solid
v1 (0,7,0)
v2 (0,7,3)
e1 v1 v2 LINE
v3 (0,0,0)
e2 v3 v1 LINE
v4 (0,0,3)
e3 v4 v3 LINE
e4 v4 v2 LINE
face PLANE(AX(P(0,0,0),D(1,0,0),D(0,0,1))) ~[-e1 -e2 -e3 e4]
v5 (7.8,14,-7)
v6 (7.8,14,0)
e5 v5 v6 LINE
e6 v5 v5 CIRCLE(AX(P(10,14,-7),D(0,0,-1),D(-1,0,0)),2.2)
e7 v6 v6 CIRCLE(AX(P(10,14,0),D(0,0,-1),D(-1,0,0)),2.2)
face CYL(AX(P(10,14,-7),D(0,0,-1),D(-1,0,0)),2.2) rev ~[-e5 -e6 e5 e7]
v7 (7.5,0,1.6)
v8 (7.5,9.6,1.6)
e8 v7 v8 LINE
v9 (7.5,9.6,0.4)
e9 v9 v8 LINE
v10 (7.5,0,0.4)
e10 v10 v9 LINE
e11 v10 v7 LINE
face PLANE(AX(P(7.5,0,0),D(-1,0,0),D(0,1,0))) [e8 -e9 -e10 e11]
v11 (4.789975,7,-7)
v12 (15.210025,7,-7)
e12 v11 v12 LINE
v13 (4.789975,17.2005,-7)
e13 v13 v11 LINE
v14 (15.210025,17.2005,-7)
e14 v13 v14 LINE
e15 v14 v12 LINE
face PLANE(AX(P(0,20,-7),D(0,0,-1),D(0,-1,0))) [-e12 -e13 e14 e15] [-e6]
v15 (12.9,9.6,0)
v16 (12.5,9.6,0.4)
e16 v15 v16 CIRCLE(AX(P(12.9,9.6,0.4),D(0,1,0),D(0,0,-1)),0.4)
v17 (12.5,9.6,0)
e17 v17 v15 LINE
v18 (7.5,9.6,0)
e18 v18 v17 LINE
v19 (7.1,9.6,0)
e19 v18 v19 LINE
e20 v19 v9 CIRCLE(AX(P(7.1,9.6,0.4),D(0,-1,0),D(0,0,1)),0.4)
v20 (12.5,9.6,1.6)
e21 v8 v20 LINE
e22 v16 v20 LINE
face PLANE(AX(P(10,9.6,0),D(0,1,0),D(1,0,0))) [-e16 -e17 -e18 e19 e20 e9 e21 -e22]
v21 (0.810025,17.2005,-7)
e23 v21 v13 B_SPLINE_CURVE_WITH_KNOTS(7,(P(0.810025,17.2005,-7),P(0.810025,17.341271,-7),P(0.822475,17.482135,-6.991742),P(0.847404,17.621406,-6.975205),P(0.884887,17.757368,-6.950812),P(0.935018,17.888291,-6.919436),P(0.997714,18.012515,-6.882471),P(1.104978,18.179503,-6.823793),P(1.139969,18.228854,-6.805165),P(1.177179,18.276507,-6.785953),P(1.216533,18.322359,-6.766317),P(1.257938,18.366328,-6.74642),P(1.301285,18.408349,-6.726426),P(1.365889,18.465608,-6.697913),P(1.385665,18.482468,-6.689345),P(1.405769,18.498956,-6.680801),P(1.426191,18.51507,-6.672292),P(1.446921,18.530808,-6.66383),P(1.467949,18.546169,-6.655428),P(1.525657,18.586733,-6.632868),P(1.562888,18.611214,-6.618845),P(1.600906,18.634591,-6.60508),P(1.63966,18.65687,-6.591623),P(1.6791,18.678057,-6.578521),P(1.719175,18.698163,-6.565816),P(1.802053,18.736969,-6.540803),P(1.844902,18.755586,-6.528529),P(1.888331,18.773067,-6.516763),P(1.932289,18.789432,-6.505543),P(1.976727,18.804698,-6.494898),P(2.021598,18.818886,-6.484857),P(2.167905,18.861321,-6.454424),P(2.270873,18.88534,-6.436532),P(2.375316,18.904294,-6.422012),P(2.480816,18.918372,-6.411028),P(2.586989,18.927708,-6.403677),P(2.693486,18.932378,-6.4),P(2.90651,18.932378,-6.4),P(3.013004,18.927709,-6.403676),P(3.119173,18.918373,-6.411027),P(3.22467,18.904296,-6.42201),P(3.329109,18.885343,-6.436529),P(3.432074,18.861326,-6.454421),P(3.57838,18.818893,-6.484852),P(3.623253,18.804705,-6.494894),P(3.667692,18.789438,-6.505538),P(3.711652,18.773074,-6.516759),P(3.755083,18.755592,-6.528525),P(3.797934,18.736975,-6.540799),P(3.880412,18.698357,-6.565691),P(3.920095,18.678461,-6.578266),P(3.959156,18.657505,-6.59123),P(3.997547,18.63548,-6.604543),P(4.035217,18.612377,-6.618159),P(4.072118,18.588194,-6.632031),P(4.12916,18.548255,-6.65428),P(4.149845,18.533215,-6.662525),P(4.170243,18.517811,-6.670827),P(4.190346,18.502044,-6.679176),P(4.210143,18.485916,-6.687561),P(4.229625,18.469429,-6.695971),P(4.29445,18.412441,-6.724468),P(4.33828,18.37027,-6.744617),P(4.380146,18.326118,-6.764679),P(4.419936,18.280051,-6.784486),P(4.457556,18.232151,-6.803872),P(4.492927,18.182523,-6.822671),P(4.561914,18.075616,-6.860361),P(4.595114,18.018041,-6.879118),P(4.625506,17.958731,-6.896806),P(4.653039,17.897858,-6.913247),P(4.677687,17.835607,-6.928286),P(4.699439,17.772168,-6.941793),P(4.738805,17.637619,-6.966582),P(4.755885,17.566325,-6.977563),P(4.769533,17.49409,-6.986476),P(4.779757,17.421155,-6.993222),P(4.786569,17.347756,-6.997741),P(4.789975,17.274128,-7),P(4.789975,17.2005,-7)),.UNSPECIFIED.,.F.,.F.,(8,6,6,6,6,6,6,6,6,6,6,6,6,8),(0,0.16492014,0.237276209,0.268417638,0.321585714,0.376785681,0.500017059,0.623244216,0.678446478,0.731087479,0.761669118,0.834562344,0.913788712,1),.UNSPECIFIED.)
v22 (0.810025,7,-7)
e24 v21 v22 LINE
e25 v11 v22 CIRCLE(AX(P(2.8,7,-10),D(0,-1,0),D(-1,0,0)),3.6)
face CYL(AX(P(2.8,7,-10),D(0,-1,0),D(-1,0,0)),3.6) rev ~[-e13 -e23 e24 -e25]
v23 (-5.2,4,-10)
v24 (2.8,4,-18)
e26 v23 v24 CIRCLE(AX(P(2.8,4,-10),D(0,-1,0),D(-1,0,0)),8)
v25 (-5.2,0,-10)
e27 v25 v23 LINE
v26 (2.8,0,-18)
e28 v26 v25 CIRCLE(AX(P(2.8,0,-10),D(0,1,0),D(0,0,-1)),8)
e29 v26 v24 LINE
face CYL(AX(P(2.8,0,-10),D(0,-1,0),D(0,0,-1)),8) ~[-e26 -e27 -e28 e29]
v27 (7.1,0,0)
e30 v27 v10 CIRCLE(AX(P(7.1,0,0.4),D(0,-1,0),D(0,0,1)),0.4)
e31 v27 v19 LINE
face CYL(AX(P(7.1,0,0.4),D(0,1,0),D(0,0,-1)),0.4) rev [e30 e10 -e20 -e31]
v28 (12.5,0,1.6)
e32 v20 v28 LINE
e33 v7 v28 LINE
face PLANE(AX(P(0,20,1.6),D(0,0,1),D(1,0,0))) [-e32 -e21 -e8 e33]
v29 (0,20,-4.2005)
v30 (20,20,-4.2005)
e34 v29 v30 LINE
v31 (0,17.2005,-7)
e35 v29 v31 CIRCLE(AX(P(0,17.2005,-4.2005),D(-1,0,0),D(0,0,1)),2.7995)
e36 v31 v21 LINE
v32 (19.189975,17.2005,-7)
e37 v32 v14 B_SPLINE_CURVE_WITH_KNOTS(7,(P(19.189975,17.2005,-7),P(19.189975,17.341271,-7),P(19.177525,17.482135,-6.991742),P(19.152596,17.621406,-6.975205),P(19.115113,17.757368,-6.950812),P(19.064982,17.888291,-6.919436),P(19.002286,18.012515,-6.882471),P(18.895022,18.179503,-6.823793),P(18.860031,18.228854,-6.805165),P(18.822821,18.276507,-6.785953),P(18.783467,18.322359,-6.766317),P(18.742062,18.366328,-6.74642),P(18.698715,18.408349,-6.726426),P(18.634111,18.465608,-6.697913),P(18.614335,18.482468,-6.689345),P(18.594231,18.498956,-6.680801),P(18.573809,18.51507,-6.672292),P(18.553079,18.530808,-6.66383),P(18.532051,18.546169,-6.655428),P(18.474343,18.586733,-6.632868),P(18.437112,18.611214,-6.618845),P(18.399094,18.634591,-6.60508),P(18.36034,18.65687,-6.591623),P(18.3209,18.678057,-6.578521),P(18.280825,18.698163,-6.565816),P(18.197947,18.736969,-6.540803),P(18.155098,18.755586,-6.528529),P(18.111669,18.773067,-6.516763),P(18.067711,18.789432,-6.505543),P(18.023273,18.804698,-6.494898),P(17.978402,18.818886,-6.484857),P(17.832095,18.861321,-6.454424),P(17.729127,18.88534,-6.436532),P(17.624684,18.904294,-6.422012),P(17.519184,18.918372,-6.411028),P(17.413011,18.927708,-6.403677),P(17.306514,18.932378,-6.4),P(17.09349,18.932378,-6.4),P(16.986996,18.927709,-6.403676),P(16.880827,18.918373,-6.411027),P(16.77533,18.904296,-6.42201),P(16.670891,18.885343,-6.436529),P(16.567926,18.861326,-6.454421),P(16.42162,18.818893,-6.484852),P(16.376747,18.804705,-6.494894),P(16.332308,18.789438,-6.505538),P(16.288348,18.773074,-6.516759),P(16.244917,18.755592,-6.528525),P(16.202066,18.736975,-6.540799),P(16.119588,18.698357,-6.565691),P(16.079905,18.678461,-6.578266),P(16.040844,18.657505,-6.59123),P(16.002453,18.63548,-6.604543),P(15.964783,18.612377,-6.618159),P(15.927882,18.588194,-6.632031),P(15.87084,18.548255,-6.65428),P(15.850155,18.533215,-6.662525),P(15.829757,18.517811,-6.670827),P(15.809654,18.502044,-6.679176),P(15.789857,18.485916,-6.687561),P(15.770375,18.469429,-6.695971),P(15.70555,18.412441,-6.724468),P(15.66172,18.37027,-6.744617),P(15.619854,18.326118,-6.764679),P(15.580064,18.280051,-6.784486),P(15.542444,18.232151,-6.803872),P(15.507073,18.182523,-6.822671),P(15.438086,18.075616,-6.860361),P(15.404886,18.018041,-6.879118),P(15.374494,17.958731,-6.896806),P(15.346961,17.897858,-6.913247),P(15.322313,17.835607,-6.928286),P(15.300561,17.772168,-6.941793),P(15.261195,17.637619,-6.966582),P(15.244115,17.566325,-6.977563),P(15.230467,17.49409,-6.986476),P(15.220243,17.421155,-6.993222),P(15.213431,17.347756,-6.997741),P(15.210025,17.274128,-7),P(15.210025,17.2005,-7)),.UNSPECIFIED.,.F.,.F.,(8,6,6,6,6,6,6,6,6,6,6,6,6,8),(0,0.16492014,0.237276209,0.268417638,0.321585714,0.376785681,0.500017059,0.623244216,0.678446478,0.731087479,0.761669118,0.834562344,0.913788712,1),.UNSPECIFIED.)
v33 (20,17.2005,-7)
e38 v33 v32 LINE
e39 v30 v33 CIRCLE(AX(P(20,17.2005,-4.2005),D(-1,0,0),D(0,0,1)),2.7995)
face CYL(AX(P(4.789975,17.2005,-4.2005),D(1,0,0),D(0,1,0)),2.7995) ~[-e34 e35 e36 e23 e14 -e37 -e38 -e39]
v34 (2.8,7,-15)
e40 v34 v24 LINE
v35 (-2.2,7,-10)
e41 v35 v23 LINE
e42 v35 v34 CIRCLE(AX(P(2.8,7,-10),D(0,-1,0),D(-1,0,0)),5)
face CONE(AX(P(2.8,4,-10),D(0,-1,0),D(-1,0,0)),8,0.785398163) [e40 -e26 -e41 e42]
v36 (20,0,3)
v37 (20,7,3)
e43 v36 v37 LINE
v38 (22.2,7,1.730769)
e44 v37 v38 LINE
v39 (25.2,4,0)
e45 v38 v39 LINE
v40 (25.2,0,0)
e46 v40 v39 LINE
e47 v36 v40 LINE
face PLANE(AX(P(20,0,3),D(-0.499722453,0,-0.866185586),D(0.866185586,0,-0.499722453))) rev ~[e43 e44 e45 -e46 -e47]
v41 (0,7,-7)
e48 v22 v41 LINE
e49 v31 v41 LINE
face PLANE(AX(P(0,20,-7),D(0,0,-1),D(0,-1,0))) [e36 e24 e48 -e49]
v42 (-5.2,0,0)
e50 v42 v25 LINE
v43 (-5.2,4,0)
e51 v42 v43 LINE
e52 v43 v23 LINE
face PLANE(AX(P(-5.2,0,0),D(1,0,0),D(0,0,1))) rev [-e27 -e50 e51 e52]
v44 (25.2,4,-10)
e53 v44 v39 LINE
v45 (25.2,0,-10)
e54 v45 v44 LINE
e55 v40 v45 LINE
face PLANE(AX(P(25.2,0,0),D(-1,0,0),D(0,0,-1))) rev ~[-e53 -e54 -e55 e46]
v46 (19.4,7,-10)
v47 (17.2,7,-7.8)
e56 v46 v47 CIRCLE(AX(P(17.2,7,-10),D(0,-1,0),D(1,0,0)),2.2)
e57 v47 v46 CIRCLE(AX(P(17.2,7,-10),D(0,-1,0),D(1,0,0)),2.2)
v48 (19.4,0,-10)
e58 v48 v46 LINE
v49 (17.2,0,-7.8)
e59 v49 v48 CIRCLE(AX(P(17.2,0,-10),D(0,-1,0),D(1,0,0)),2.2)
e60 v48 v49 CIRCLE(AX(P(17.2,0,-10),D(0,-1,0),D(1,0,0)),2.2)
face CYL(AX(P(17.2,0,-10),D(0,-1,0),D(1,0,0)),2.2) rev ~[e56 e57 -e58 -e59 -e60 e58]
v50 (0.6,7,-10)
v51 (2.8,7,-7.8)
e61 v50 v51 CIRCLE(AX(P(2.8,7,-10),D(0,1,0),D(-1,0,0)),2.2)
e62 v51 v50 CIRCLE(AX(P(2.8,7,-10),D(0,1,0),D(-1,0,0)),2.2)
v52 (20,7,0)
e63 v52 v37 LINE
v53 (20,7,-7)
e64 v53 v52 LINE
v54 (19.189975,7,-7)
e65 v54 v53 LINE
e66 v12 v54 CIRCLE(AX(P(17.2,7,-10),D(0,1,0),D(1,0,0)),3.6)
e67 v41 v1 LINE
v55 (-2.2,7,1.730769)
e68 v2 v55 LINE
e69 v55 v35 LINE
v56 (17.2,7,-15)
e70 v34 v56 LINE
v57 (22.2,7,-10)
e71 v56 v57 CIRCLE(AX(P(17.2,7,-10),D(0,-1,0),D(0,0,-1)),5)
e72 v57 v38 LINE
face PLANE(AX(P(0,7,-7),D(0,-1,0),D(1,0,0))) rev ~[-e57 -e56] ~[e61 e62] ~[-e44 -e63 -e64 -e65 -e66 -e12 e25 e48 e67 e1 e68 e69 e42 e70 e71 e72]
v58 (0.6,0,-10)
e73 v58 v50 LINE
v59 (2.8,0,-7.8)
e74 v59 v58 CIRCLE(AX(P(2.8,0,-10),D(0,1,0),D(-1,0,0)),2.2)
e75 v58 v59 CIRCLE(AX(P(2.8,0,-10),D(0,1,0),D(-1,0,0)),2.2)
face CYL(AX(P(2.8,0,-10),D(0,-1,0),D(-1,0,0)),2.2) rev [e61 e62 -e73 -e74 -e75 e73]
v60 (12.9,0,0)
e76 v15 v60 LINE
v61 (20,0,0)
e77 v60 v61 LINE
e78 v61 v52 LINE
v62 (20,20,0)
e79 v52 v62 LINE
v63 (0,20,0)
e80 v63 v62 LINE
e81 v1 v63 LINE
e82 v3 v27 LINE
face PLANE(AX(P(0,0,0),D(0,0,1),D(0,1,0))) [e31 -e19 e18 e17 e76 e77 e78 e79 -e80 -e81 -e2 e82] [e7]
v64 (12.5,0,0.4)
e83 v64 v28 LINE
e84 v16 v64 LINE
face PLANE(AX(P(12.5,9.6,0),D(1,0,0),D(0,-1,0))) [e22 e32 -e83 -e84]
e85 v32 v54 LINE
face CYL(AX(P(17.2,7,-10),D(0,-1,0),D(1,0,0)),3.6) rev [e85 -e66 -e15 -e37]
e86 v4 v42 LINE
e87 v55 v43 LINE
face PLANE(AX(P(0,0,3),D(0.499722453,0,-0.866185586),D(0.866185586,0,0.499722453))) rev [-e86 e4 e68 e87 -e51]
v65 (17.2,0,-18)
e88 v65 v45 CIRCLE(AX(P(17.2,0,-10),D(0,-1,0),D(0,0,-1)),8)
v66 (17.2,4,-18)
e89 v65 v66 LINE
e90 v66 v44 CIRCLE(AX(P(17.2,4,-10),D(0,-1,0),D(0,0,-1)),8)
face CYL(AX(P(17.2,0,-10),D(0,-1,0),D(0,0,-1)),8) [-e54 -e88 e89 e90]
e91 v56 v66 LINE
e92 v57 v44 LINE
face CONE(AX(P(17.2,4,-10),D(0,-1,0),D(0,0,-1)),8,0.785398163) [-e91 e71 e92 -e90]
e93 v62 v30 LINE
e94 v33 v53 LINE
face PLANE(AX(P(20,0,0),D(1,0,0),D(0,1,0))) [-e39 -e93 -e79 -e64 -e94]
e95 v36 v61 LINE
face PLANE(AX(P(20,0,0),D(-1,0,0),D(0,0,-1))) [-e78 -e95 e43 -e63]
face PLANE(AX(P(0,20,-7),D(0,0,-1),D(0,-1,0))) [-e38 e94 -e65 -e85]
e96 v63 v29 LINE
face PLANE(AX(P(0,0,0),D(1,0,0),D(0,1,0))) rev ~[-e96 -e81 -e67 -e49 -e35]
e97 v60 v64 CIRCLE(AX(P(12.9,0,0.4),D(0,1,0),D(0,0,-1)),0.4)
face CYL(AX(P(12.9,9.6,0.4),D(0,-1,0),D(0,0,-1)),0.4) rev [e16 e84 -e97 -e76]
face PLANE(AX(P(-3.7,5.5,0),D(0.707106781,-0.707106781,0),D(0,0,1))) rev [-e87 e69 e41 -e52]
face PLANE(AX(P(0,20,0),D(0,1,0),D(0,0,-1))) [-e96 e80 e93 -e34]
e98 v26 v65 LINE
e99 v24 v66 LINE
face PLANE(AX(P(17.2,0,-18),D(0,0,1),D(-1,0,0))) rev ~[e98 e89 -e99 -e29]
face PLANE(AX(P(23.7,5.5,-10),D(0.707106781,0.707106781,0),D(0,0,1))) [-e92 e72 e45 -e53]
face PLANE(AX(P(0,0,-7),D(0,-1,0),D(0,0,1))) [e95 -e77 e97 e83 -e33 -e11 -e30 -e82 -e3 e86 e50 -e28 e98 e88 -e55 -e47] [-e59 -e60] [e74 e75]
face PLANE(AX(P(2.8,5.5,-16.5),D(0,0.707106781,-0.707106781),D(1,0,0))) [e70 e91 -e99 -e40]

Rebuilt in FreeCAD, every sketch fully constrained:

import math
import FreeCAD as App
import Part
import Sketcher
from FreeCAD import Vector
Q = App.Units.Quantity


def edges_at(feature, points):
    """Names of the edges that pass closest to the given points."""
    edges = feature.Shape.Edges
    near = lambda p: min(range(len(edges)), key=lambda i: edges[i].distToShape(Part.Vertex(*p))[0])
    return sorted({f"Edge{near(p) + 1}" for p in points})

doc = App.newDocument("Part")
body = doc.addObject("PartDesign::Body", "Body")

sketch1 = body.newObject("Sketcher::SketchObject", "Sketch")
sketch1.AttachmentSupport = (doc.getObject("YZ_Plane"), [""])
sketch1.MapMode = "FlatFace"
sketch1.addGeometry([
    Part.LineSegment(Vector(20, 0, 0), Vector(0, 0, 0)),
    Part.LineSegment(Vector(0, 0, 0), Vector(0, -7, 0)),
    Part.LineSegment(Vector(0, -7, 0), Vector(20, -7, 0)),
    Part.LineSegment(Vector(20, -7, 0), Vector(20, 0, 0)),
], False)
sketch1.addConstraint([
    Sketcher.Constraint("Coincident", 0, 2, 1, 1),
    Sketcher.Constraint("Coincident", 1, 2, 2, 1),
    Sketcher.Constraint("Coincident", 2, 2, 3, 1),
    Sketcher.Constraint("Coincident", 3, 2, 0, 1),
    Sketcher.Constraint("Horizontal", 0),
    Sketcher.Constraint("Vertical", 1),
    Sketcher.Constraint("Horizontal", 2),
    Sketcher.Constraint("Vertical", 3),
    Sketcher.Constraint("Coincident", 0, 2, -1, 1),
    Sketcher.Constraint("DistanceX", 0, 2, 0, 1, Q("20 mm")),
    Sketcher.Constraint("DistanceY", 1, 2, 1, 1, Q("7 mm")),
])
pad1 = body.newObject("PartDesign::Pad", "Pad")
pad1.Profile = sketch1
pad1.Length = 20

sketch2 = body.newObject("Sketcher::SketchObject", "Sketch001")
sketch2.AttachmentSupport = (doc.getObject("XY_Plane"), [""])
sketch2.MapMode = "FlatFace"
sketch2.AttachmentOffset = App.Placement(Vector(0, 0, -7), App.Rotation())
sketch2.addGeometry(Part.Circle(Vector(10, 14, 0), Vector(0, 0, 1), 2.2), False)
sketch2.addConstraint([
    Sketcher.Constraint("Diameter", 0, Q("4.4 mm")),
    Sketcher.Constraint("DistanceX", -1, 1, 0, 3, Q("10 mm")),
    Sketcher.Constraint("DistanceY", -1, 1, 0, 3, Q("14 mm")),
])
pocket1 = body.newObject("PartDesign::Pocket", "Pocket")
pocket1.Profile = sketch2
pocket1.Type = "ThroughAll"
pocket1.Reversed = True

sketch3 = body.newObject("Sketcher::SketchObject", "Sketch002")
sketch3.AttachmentSupport = (doc.getObject("XZ_Plane"), [""])
sketch3.MapMode = "FlatFace"
sketch3.addGeometry([
    Part.LineSegment(Vector(17.2, -7, 0), Vector(10, -7, 0)),
    Part.LineSegment(Vector(10, -7, 0), Vector(10, -18, 0)),
    Part.LineSegment(Vector(10, -18, 0), Vector(17.2, -18, 0)),
    Part.ArcOfCircle(Part.Circle(Vector(17.2, -10, 0), Vector(0, 0, 1), 8), math.radians(-90), math.radians(0)),
    Part.LineSegment(Vector(25.2, -10, 0), Vector(25.2, 0, 0)),
    Part.LineSegment(Vector(25.2, 0, 0), Vector(20, 3, 0)),
    Part.LineSegment(Vector(20, 3, 0), Vector(20, -7, 0)),
    Part.LineSegment(Vector(20, -7, 0), Vector(17.2, -7, 0)),
    Part.Circle(Vector(17.2, -10, 0), Vector(0, 0, 1), 2.2),
], False)
sketch3.addConstraint([
    Sketcher.Constraint("Coincident", 0, 2, 1, 1),
    Sketcher.Constraint("Coincident", 1, 2, 2, 1),
    Sketcher.Constraint("Tangent", 2, 2, 3, 1),
    Sketcher.Constraint("Tangent", 3, 2, 4, 1),
    Sketcher.Constraint("Coincident", 4, 2, 5, 1),
    Sketcher.Constraint("Coincident", 5, 2, 6, 1),
    Sketcher.Constraint("Coincident", 6, 2, 7, 1),
    Sketcher.Constraint("Coincident", 7, 2, 0, 1),
    Sketcher.Constraint("Horizontal", 0),
    Sketcher.Constraint("Vertical", 1),
    Sketcher.Constraint("Horizontal", 2),
    Sketcher.Constraint("Vertical", 4),
    Sketcher.Constraint("Vertical", 6),
    Sketcher.Constraint("Horizontal", 7),
    Sketcher.Constraint("Coincident", 8, 3, 3, 3),
    Sketcher.Constraint("PointOnObject", 4, 2, -1),
    Sketcher.Constraint("Vertical", 2, 2, 7, 2),
    Sketcher.Constraint("Equal", 4, 6),
    Sketcher.Constraint("Radius", 3, Q("8 mm")),
    Sketcher.Constraint("Diameter", 8, Q("4.4 mm")),
    Sketcher.Constraint("DistanceY", 4, 1, 4, 2, Q("10 mm")),
    Sketcher.Constraint("DistanceX", 0, 2, 0, 1, Q("7.2 mm")),
    Sketcher.Constraint("DistanceX", -1, 1, 0, 2, Q("10 mm")),
    Sketcher.Constraint("DistanceY", -1, 1, 5, 2, Q("3 mm")),
    Sketcher.Constraint("DistanceX", 0, 2, 5, 2, Q("10 mm")),
])
pad2 = body.newObject("PartDesign::Pad", "Pad001")
pad2.Profile = sketch3
pad2.Length = 7
pad2.Reversed = True

sketch4 = body.newObject("Sketcher::SketchObject", "Sketch003")
sketch4.AttachmentSupport = (doc.getObject("XZ_Plane"), [""])
sketch4.MapMode = "FlatFace"
sketch4.AttachmentOffset = App.Placement(Vector(0, 0, -7), App.Rotation())
sketch4.addGeometry([
    Part.Circle(Vector(17.2, -10, 0), Vector(0, 0, 1), 3.6),
    Part.Circle(Vector(17.2, -10, 0), Vector(0, 0, 1), 2.2),
], False)
sketch4.addConstraint([
    Sketcher.Constraint("Coincident", 1, 3, 0, 3),
    Sketcher.Constraint("Diameter", 0, Q("7.2 mm")),
    Sketcher.Constraint("Diameter", 1, Q("4.4 mm")),
    Sketcher.Constraint("DistanceY", 0, 3, -1, 1, Q("10 mm")),
    Sketcher.Constraint("DistanceX", -1, 1, 0, 3, Q("17.2 mm")),
])
pocket2 = body.newObject("PartDesign::Pocket", "Pocket001")
pocket2.Profile = sketch4
pocket2.Type = "ThroughAll"
doc.recompute()

datumplane = body.newObject("PartDesign::Plane", "DatumPlane")
datumplane.AttachmentSupport = (doc.getObject("YZ_Plane"), [""])
datumplane.MapMode = "FlatFace"
datumplane.AttachmentOffset = App.Placement(Vector(0, 0, 10), App.Rotation())
mirrored = body.newObject("PartDesign::Mirrored", "Mirrored")
mirrored.Originals = [pad2, pocket2]
mirrored.MirrorPlane = (datumplane, [""])
body.Tip = mirrored
doc.recompute()

fillet = body.newObject("PartDesign::Fillet", "Fillet")
fillet.Base = (mirrored, edges_at(mirrored, [(10, 20, -7)]))
fillet.Radius = 2.8
doc.recompute()

chamfer = body.newObject("PartDesign::Chamfer", "Chamfer")
chamfer.Base = (fillet, edges_at(fillet, [
    (10, 7, -18),
    (-2.857, 7, -15.657),
    (-5.2, 7, -5),
    (22.857, 7, -15.657),
    (25.2, 7, -5),
]))
chamfer.Size = 3

sketch5 = body.newObject("Sketcher::SketchObject", "Sketch004")
sketch5.AttachmentSupport = (doc.getObject("XY_Plane"), [""])
sketch5.MapMode = "FlatFace"
sketch5.addGeometry([
    Part.LineSegment(Vector(12, 10, 0), Vector(8, 10, 0)),
    Part.LineSegment(Vector(8, 10, 0), Vector(8, 0, 0)),
    Part.LineSegment(Vector(8, 0, 0), Vector(12, 0, 0)),
    Part.LineSegment(Vector(12, 0, 0), Vector(12, 10, 0)),
], False)
sketch5.addConstraint([
    Sketcher.Constraint("Coincident", 0, 2, 1, 1),
    Sketcher.Constraint("Coincident", 1, 2, 2, 1),
    Sketcher.Constraint("Coincident", 2, 2, 3, 1),
    Sketcher.Constraint("Coincident", 3, 2, 0, 1),
    Sketcher.Constraint("Horizontal", 0),
    Sketcher.Constraint("Vertical", 1),
    Sketcher.Constraint("Horizontal", 2),
    Sketcher.Constraint("Vertical", 3),
    Sketcher.Constraint("PointOnObject", 1, 2, -1),
    Sketcher.Constraint("DistanceX", 0, 2, 0, 1, Q("5 mm")),
    Sketcher.Constraint("DistanceY", 1, 2, 1, 1, Q("9.6 mm")),
    Sketcher.Constraint("DistanceX", -1, 1, 0, 2, Q("7.5 mm")),
])
pad3 = body.newObject("PartDesign::Pad", "Pad002")
pad3.Profile = sketch5
pad3.Length = 1.6
doc.recompute()

fillet2 = body.newObject("PartDesign::Fillet", "Fillet001")
fillet2.Base = (pad3, edges_at(pad3, [(12.5, 4.8, 0), (7.5, 4.8, 0)]))
fillet2.Radius = 0.4

doc.recompute()
